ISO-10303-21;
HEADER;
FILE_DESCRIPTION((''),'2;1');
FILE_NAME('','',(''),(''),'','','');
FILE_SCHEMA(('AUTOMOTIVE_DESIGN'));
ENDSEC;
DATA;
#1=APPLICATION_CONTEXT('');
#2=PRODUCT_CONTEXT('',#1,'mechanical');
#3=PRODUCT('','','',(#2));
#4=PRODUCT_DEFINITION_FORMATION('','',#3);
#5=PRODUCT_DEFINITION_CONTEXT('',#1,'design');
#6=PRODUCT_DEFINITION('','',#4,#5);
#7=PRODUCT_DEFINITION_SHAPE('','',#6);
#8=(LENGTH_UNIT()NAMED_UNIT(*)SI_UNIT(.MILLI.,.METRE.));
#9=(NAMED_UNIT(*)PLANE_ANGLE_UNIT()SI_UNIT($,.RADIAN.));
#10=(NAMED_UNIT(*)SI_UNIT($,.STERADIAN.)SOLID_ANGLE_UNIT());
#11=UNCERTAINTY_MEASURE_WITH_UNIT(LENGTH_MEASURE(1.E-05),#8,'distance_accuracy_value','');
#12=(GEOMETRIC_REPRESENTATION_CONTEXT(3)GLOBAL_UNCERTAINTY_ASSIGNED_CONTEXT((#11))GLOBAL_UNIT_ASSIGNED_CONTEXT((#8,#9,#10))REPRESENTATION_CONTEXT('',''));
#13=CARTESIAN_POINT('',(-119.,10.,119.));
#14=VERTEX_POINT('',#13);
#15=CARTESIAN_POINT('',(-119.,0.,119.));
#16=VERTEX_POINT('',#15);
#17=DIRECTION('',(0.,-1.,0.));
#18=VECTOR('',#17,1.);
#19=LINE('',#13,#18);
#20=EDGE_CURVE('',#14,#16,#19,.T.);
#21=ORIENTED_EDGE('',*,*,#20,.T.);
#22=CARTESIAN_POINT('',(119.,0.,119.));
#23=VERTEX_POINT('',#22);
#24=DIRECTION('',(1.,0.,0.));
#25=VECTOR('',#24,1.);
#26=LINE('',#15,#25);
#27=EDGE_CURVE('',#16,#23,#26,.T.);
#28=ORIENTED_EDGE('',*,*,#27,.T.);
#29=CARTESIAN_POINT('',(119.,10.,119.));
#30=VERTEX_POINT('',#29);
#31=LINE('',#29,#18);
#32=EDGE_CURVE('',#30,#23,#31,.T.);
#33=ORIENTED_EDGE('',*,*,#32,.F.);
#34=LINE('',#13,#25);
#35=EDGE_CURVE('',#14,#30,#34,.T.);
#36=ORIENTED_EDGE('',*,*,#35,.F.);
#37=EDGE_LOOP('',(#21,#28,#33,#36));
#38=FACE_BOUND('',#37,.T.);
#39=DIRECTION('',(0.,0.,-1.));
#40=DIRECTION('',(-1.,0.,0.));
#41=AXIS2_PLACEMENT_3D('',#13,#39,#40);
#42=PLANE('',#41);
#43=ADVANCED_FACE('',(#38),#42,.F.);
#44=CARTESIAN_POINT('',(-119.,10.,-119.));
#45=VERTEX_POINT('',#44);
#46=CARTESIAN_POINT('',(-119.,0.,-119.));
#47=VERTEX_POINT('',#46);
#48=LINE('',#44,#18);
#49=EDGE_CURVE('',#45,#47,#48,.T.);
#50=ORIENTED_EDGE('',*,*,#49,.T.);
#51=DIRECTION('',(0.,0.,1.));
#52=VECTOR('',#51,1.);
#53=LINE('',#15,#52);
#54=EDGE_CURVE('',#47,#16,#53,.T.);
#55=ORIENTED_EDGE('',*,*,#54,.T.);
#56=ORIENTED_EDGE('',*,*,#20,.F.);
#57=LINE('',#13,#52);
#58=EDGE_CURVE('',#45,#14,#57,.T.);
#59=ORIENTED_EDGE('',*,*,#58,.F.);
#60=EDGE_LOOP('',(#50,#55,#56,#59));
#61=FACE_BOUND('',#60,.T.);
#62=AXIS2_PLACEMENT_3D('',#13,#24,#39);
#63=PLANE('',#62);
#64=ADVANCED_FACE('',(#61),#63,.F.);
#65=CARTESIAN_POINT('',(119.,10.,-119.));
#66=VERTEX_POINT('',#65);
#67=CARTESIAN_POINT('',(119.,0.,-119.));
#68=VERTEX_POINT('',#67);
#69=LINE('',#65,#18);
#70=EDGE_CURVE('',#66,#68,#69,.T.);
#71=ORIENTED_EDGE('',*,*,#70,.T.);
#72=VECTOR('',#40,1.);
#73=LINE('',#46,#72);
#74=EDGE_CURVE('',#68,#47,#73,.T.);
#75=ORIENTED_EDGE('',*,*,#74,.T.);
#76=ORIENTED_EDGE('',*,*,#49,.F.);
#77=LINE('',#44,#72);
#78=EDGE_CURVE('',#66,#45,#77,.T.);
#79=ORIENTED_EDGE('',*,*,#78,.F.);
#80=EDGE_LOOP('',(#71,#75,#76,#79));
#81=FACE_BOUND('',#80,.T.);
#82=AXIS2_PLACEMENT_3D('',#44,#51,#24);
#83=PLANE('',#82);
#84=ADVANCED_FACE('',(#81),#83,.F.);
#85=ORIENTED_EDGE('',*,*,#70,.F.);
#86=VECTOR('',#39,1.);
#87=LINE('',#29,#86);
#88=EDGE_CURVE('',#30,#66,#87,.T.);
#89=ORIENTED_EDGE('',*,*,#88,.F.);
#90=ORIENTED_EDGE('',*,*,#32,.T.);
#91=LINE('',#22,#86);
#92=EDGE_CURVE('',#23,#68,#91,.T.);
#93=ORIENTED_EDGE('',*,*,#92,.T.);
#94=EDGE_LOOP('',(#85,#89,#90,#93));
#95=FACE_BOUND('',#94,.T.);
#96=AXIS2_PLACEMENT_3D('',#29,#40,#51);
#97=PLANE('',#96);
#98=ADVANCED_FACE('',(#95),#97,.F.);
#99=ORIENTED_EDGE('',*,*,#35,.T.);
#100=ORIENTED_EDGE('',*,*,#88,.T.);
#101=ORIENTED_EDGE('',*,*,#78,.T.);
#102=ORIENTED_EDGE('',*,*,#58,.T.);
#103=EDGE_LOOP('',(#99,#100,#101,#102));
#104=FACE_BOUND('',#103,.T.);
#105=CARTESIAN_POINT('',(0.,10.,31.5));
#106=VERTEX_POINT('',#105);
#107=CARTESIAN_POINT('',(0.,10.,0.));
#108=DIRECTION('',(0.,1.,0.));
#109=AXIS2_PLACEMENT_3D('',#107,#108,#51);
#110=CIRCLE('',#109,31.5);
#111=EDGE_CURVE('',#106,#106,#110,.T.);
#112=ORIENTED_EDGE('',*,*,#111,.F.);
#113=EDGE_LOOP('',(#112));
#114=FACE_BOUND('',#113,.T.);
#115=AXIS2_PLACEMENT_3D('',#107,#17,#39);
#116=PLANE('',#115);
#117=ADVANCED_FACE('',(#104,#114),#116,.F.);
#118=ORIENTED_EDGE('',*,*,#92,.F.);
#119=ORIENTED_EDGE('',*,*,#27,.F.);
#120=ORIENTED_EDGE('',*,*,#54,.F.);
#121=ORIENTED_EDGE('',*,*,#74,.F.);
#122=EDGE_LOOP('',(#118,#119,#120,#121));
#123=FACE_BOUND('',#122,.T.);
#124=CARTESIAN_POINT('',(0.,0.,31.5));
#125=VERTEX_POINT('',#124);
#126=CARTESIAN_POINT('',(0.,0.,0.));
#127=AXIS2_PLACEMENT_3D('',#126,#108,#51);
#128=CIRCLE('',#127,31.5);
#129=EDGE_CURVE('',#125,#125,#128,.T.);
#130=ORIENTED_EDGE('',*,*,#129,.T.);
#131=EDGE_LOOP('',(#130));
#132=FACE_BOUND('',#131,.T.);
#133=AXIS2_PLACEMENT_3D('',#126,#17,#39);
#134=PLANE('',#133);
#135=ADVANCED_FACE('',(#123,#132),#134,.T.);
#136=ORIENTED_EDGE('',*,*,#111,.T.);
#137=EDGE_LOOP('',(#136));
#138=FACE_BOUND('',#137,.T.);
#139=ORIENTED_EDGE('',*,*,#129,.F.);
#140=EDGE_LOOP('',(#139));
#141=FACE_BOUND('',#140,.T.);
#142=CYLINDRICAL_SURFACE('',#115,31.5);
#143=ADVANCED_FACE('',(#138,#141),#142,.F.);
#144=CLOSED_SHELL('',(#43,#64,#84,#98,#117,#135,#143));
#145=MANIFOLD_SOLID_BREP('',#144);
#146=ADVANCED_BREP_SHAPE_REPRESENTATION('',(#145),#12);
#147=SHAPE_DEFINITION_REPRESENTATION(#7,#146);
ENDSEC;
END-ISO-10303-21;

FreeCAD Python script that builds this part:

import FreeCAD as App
import Part
import Sketcher
Q = App.Units.Quantity


def add_polygon(sketch, points):
    """Adds a closed chain of lines whose ends are joined by coincident constraints."""
    first, n = sketch.GeometryCount, len(points)
    for a, b in zip(points, points[1:] + points[:1]):
        sketch.addGeometry(Part.LineSegment(App.Vector(*a, 0), App.Vector(*b, 0)), False)
    for i in range(n):
        sketch.addConstraint(Sketcher.Constraint("Coincident", first + i, 2, first + (i + 1) % n, 1))

doc = App.newDocument("Part")
params = doc.addObject("Spreadsheet::Sheet", "Params")
for row, (alias, value) in enumerate([
    ("sketch1_diameter", "63 mm"),
    ("sketch1_width", "238 mm"),
    ("pad1_length", "10 mm"),
], start=1):
    params.set(f"A{row}", alias)
    params.set(f"B{row}", "=" + value)
    params.setAlias(f"B{row}", alias)

body = doc.addObject("PartDesign::Body", "Body")

sketch1 = body.newObject("Sketcher::SketchObject", "Sketch")
sketch1.AttachmentSupport = (doc.getObject("XZ_Plane"), [""])
sketch1.MapMode = "FlatFace"
add_polygon(sketch1, [(-119, -119), (-119, 119), (119, 119), (119, -119)])
sketch1.addGeometry(Part.Circle(App.Vector(0, 0, 0), App.Vector(0, 0, 1), 32), False)
sketch1.addConstraint([
    Sketcher.Constraint("Vertical", 0),
    Sketcher.Constraint("Horizontal", 1),
    Sketcher.Constraint("Vertical", 2),
    Sketcher.Constraint("Horizontal", 3),
    Sketcher.Constraint("Coincident", 4, 3, -1, 1),
    Sketcher.Constraint("Symmetric", 0, 2, 2, 2, -1, 1),
    Sketcher.Constraint("Equal", 3, 0),
    Sketcher.Constraint("Diameter", 4, Q("63 mm")),
    Sketcher.Constraint("DistanceX", 1, 1, 1, 2, Q("238 mm")),
])
sketch1.setExpression("Constraints[11]", "Params.sketch1_diameter")
sketch1.setExpression("Constraints[12]", "Params.sketch1_width")
pad1 = body.newObject("PartDesign::Pad", "Pad")
pad1.Profile = sketch1
pad1.setExpression("Length", "Params.pad1_length")
pad1.Reversed = True

doc.recompute()
